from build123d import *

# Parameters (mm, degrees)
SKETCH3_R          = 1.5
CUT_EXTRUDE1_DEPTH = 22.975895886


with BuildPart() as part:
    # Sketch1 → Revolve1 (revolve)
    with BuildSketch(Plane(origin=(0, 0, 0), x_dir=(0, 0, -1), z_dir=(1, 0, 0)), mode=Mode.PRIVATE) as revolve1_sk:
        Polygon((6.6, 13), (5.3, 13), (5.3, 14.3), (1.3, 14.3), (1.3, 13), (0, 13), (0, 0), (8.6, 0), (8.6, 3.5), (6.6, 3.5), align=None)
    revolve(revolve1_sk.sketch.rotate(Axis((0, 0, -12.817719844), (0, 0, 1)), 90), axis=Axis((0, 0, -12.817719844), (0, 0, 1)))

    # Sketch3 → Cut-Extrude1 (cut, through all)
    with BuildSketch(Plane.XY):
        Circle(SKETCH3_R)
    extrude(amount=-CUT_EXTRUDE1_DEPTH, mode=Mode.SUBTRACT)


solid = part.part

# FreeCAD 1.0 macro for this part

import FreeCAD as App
import Part
import Sketcher
from FreeCAD import Vector


def add_polygon(sketch, points):
    """Adds a closed chain of lines whose ends are joined by coincident constraints."""
    first, n = sketch.GeometryCount, len(points)
    for a, b in zip(points, points[1:] + points[:1]):
        sketch.addGeometry(Part.LineSegment(App.Vector(*a, 0), App.Vector(*b, 0)), False)
    for i in range(n):
        sketch.addConstraint(Sketcher.Constraint("Coincident", first + i, 2, first + (i + 1) % n, 1))

doc = App.newDocument("Part")
body = doc.addObject("PartDesign::Body", "Body")

# Sketch on YZ plane
sketch1 = body.newObject("Sketcher::SketchObject", "Sketch")
sketch1.AttachmentSupport = (doc.getObject("YZ_Plane"), [""])
sketch1.MapMode = "FlatFace"
add_polygon(sketch1, [(13, -6.6), (13, -5.3), (14.3, -5.3), (14.3, -1.3), (13, -1.3), (13, 0), (0, 0), (0, -8.6), (3.5, -8.6), (3.5, -6.6)])  # lines 0-9
sketch1.addConstraint(Sketcher.Constraint("Vertical", 0))
sketch1.addConstraint(Sketcher.Constraint("Horizontal", 1))
sketch1.addConstraint(Sketcher.Constraint("Vertical", 2))
sketch1.addConstraint(Sketcher.Constraint("Horizontal", 3))
sketch1.addConstraint(Sketcher.Constraint("Vertical", 4))
sketch1.addConstraint(Sketcher.Constraint("Horizontal", 5))
sketch1.addConstraint(Sketcher.Constraint("Vertical", 6))
sketch1.addConstraint(Sketcher.Constraint("Horizontal", 7))
sketch1.addConstraint(Sketcher.Constraint("Vertical", 8))
sketch1.addConstraint(Sketcher.Constraint("Horizontal", 9))
sketch1.addConstraint(Sketcher.Constraint("Coincident", 5, 2, -1, 1))
sketch1.addConstraint(Sketcher.Constraint("Vertical", 0, 2, 3, 2))
sketch1.addConstraint(Sketcher.Constraint("Equal", 3, 0))
sketch1.addConstraint(Sketcher.Constraint("Equal", 0, 4))
sketch1.addConstraint(Sketcher.Constraint("DistanceX", 5, 2, 5, 1, 13.0))
sketch1.addConstraint(Sketcher.Constraint("DistanceY", 2, 1, 2, 2, 4.0))
sketch1.addConstraint(Sketcher.Constraint("DistanceY", 8, 1, 8, 2, 2.0))
sketch1.addConstraint(Sketcher.Constraint("DistanceX", 1, 1, 1, 2, 1.3))
sketch1.addConstraint(Sketcher.Constraint("DistanceX", 7, 1, 7, 2, 3.5))
revolution = body.newObject("PartDesign::Revolution", "Revolution")
revolution.Profile = sketch1
revolution.ReferenceAxis = (sketch1, ["V_Axis"])
revolution.Angle = 360

# Sketch on XY plane
sketch2 = body.newObject("Sketcher::SketchObject", "Sketch001")
sketch2.AttachmentSupport = (doc.getObject("XY_Plane"), [""])
sketch2.MapMode = "FlatFace"
sketch2.addGeometry(Part.Circle(Vector(0, 0, 0), Vector(0, 0, 1), 1.5), False)
sketch2.addConstraint(Sketcher.Constraint("Coincident", 0, 3, -1, 1))
sketch2.addConstraint(Sketcher.Constraint("Diameter", 0, 3.0))
pocket1 = body.newObject("PartDesign::Pocket", "Pocket")
pocket1.Profile = sketch2
pocket1.Type = "ThroughAll"

doc.recompute()
